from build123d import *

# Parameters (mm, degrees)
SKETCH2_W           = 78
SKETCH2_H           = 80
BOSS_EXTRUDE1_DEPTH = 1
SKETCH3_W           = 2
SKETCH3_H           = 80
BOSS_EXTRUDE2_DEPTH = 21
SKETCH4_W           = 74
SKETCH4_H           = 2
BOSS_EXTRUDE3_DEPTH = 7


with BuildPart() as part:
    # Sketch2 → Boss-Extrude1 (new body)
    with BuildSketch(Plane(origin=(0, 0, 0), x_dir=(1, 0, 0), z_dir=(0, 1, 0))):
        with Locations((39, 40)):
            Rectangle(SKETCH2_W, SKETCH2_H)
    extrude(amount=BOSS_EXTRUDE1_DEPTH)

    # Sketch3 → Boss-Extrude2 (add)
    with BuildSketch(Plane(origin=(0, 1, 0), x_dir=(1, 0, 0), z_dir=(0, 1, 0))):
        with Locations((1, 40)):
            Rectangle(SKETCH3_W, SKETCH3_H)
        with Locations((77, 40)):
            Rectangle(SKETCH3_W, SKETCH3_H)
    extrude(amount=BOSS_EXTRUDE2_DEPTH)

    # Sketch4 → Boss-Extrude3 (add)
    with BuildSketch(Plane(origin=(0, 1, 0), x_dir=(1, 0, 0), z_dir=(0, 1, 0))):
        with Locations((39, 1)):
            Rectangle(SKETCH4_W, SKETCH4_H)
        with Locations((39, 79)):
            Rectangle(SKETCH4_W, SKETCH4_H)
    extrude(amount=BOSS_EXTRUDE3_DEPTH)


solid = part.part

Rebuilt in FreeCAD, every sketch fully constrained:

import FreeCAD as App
import Part
import Sketcher

doc = App.newDocument("Part")
params = doc.addObject("Spreadsheet::Sheet", "Params")
for row, (alias, value) in enumerate([
    ("sketch1_width", "78 mm"),
    ("sketch1_height", "80 mm"),
    ("pad1_length", "1 mm"),
    ("sketch2_width", "2 mm"),
    ("sketch2_height", "80 mm"),
    ("pad2_length", "21 mm"),
    ("sketch3_width", "74 mm"),
    ("sketch3_height", "2 mm"),
    ("pad3_length", "7 mm"),
], start=1):
    params.set(f"A{row}", alias)
    params.set(f"B{row}", "=" + value)
    params.setAlias(f"B{row}", alias)

body = doc.addObject("PartDesign::Body", "Body")

sketch1 = body.newObject("Sketcher::SketchObject", "Sketch")
sketch1.AttachmentSupport = (doc.getObject("XZ_Plane"), [""])
sketch1.MapMode = "FlatFace"
sketch1.addGeometry(Part.LineSegment(App.Vector(0, -80, 0), App.Vector(0, 0, 0)), False)
sketch1.addGeometry(Part.LineSegment(App.Vector(0, 0, 0), App.Vector(78, 0, 0)), False)
sketch1.addGeometry(Part.LineSegment(App.Vector(78, 0, 0), App.Vector(78, -80, 0)), False)
sketch1.addGeometry(Part.LineSegment(App.Vector(78, -80, 0), App.Vector(0, -80, 0)), False)
sketch1.addConstraint(Sketcher.Constraint("Coincident", 0, 2, 1, 1))
sketch1.addConstraint(Sketcher.Constraint("Coincident", 1, 2, 2, 1))
sketch1.addConstraint(Sketcher.Constraint("Coincident", 2, 2, 3, 1))
sketch1.addConstraint(Sketcher.Constraint("Coincident", 3, 2, 0, 1))
sketch1.addConstraint(Sketcher.Constraint("Vertical", 0))
sketch1.addConstraint(Sketcher.Constraint("Horizontal", 1))
sketch1.addConstraint(Sketcher.Constraint("Vertical", 2))
sketch1.addConstraint(Sketcher.Constraint("Horizontal", 3))
sketch1.addConstraint(Sketcher.Constraint("Coincident", 0, 2, -1, 1))
sketch1.addConstraint(Sketcher.Constraint("DistanceX", 1, 1, 1, 2, 78.0))
sketch1.addConstraint(Sketcher.Constraint("DistanceY", 0, 1, 0, 2, 80.0))
sketch1.setExpression("Constraints[9]", "Params.sketch1_width")
sketch1.setExpression("Constraints[10]", "Params.sketch1_height")
pad1 = body.newObject("PartDesign::Pad", "Pad")
pad1.Profile = sketch1
pad1.setExpression("Length", "Params.pad1_length")
pad1.Reversed = True

sketch2 = body.newObject("Sketcher::SketchObject", "Sketch001")
sketch2.AttachmentSupport = (doc.getObject("XZ_Plane"), [""])
sketch2.MapMode = "FlatFace"
sketch2.AttachmentOffset = App.Placement(App.Vector(0, 0, -1), App.Rotation())
sketch2.addGeometry(Part.LineSegment(App.Vector(0, -80, 0), App.Vector(0, 0, 0)), False)
sketch2.addGeometry(Part.LineSegment(App.Vector(0, 0, 0), App.Vector(2, 0, 0)), False)
sketch2.addGeometry(Part.LineSegment(App.Vector(2, 0, 0), App.Vector(2, -80, 0)), False)
sketch2.addGeometry(Part.LineSegment(App.Vector(2, -80, 0), App.Vector(0, -80, 0)), False)
sketch2.addGeometry(Part.LineSegment(App.Vector(76, -80, 0), App.Vector(76, 0, 0)), False)
sketch2.addGeometry(Part.LineSegment(App.Vector(76, 0, 0), App.Vector(78, 0, 0)), False)
sketch2.addGeometry(Part.LineSegment(App.Vector(78, 0, 0), App.Vector(78, -80, 0)), False)
sketch2.addGeometry(Part.LineSegment(App.Vector(78, -80, 0), App.Vector(76, -80, 0)), False)
sketch2.addConstraint(Sketcher.Constraint("Coincident", 0, 2, 1, 1))
sketch2.addConstraint(Sketcher.Constraint("Coincident", 1, 2, 2, 1))
sketch2.addConstraint(Sketcher.Constraint("Coincident", 2, 2, 3, 1))
sketch2.addConstraint(Sketcher.Constraint("Coincident", 3, 2, 0, 1))
sketch2.addConstraint(Sketcher.Constraint("Coincident", 4, 2, 5, 1))
sketch2.addConstraint(Sketcher.Constraint("Coincident", 5, 2, 6, 1))
sketch2.addConstraint(Sketcher.Constraint("Coincident", 6, 2, 7, 1))
sketch2.addConstraint(Sketcher.Constraint("Coincident", 7, 2, 4, 1))
sketch2.addConstraint(Sketcher.Constraint("Vertical", 0))
sketch2.addConstraint(Sketcher.Constraint("Horizontal", 1))
sketch2.addConstraint(Sketcher.Constraint("Vertical", 2))
sketch2.addConstraint(Sketcher.Constraint("Horizontal", 3))
sketch2.addConstraint(Sketcher.Constraint("Vertical", 4))
sketch2.addConstraint(Sketcher.Constraint("Horizontal", 5))
sketch2.addConstraint(Sketcher.Constraint("Vertical", 6))
sketch2.addConstraint(Sketcher.Constraint("Horizontal", 7))
sketch2.addConstraint(Sketcher.Constraint("Coincident", 0, 2, -1, 1))
sketch2.addConstraint(Sketcher.Constraint("PointOnObject", 4, 2, -1))
sketch2.addConstraint(Sketcher.Constraint("Horizontal", 3, 2, 6, 2))
sketch2.addConstraint(Sketcher.Constraint("Equal", 3, 5))
sketch2.addConstraint(Sketcher.Constraint("DistanceX", 1, 1, 1, 2, 2.0))
sketch2.addConstraint(Sketcher.Constraint("DistanceY", 0, 1, 0, 2, 80.0))
sketch2.addConstraint(Sketcher.Constraint("DistanceX", -1, 1, 4, 2, 76.0))
sketch2.setExpression("Constraints[20]", "Params.sketch2_width")
sketch2.setExpression("Constraints[21]", "Params.sketch2_height")
pad2 = body.newObject("PartDesign::Pad", "Pad001")
pad2.Profile = sketch2
pad2.setExpression("Length", "Params.pad2_length")
pad2.Reversed = True

sketch3 = body.newObject("Sketcher::SketchObject", "Sketch002")
sketch3.AttachmentSupport = (doc.getObject("XZ_Plane"), [""])
sketch3.MapMode = "FlatFace"
sketch3.AttachmentOffset = App.Placement(App.Vector(0, 0, -1), App.Rotation())
sketch3.addGeometry(Part.LineSegment(App.Vector(2, -2, 0), App.Vector(2, 0, 0)), False)
sketch3.addGeometry(Part.LineSegment(App.Vector(2, 0, 0), App.Vector(76, 0, 0)), False)
sketch3.addGeometry(Part.LineSegment(App.Vector(76, 0, 0), App.Vector(76, -2, 0)), False)
sketch3.addGeometry(Part.LineSegment(App.Vector(76, -2, 0), App.Vector(2, -2, 0)), False)
sketch3.addGeometry(Part.LineSegment(App.Vector(2, -80, 0), App.Vector(2, -78, 0)), False)
sketch3.addGeometry(Part.LineSegment(App.Vector(2, -78, 0), App.Vector(76, -78, 0)), False)
sketch3.addGeometry(Part.LineSegment(App.Vector(76, -78, 0), App.Vector(76, -80, 0)), False)
sketch3.addGeometry(Part.LineSegment(App.Vector(76, -80, 0), App.Vector(2, -80, 0)), False)
sketch3.addConstraint(Sketcher.Constraint("Coincident", 0, 2, 1, 1))
sketch3.addConstraint(Sketcher.Constraint("Coincident", 1, 2, 2, 1))
sketch3.addConstraint(Sketcher.Constraint("Coincident", 2, 2, 3, 1))
sketch3.addConstraint(Sketcher.Constraint("Coincident", 3, 2, 0, 1))
sketch3.addConstraint(Sketcher.Constraint("Coincident", 4, 2, 5, 1))
sketch3.addConstraint(Sketcher.Constraint("Coincident", 5, 2, 6, 1))
sketch3.addConstraint(Sketcher.Constraint("Coincident", 6, 2, 7, 1))
sketch3.addConstraint(Sketcher.Constraint("Coincident", 7, 2, 4, 1))
sketch3.addConstraint(Sketcher.Constraint("Vertical", 0))
sketch3.addConstraint(Sketcher.Constraint("Horizontal", 1))
sketch3.addConstraint(Sketcher.Constraint("Vertical", 2))
sketch3.addConstraint(Sketcher.Constraint("Horizontal", 3))
sketch3.addConstraint(Sketcher.Constraint("Vertical", 4))
sketch3.addConstraint(Sketcher.Constraint("Horizontal", 5))
sketch3.addConstraint(Sketcher.Constraint("Vertical", 6))
sketch3.addConstraint(Sketcher.Constraint("Horizontal", 7))
sketch3.addConstraint(Sketcher.Constraint("PointOnObject", 0, 2, -1))
sketch3.addConstraint(Sketcher.Constraint("Vertical", 3, 2, 4, 2))
sketch3.addConstraint(Sketcher.Constraint("Vertical", 2, 2, 5, 2))
sketch3.addConstraint(Sketcher.Constraint("Equal", 2, 4))
sketch3.addConstraint(Sketcher.Constraint("DistanceX", 1, 1, 1, 2, 74.0))
sketch3.addConstraint(Sketcher.Constraint("DistanceY", 0, 1, 0, 2, 2.0))
sketch3.addConstraint(Sketcher.Constraint("DistanceX", -1, 1, 0, 2, 2.0))
sketch3.addConstraint(Sketcher.Constraint("DistanceY", 4, 2, -1, 1, 78.0))
sketch3.setExpression("Constraints[20]", "Params.sketch3_width")
sketch3.setExpression("Constraints[21]", "Params.sketch3_height")
pad3 = body.newObject("PartDesign::Pad", "Pad002")
pad3.Profile = sketch3
pad3.setExpression("Length", "Params.pad3_length")
pad3.Reversed = True

doc.recompute()
